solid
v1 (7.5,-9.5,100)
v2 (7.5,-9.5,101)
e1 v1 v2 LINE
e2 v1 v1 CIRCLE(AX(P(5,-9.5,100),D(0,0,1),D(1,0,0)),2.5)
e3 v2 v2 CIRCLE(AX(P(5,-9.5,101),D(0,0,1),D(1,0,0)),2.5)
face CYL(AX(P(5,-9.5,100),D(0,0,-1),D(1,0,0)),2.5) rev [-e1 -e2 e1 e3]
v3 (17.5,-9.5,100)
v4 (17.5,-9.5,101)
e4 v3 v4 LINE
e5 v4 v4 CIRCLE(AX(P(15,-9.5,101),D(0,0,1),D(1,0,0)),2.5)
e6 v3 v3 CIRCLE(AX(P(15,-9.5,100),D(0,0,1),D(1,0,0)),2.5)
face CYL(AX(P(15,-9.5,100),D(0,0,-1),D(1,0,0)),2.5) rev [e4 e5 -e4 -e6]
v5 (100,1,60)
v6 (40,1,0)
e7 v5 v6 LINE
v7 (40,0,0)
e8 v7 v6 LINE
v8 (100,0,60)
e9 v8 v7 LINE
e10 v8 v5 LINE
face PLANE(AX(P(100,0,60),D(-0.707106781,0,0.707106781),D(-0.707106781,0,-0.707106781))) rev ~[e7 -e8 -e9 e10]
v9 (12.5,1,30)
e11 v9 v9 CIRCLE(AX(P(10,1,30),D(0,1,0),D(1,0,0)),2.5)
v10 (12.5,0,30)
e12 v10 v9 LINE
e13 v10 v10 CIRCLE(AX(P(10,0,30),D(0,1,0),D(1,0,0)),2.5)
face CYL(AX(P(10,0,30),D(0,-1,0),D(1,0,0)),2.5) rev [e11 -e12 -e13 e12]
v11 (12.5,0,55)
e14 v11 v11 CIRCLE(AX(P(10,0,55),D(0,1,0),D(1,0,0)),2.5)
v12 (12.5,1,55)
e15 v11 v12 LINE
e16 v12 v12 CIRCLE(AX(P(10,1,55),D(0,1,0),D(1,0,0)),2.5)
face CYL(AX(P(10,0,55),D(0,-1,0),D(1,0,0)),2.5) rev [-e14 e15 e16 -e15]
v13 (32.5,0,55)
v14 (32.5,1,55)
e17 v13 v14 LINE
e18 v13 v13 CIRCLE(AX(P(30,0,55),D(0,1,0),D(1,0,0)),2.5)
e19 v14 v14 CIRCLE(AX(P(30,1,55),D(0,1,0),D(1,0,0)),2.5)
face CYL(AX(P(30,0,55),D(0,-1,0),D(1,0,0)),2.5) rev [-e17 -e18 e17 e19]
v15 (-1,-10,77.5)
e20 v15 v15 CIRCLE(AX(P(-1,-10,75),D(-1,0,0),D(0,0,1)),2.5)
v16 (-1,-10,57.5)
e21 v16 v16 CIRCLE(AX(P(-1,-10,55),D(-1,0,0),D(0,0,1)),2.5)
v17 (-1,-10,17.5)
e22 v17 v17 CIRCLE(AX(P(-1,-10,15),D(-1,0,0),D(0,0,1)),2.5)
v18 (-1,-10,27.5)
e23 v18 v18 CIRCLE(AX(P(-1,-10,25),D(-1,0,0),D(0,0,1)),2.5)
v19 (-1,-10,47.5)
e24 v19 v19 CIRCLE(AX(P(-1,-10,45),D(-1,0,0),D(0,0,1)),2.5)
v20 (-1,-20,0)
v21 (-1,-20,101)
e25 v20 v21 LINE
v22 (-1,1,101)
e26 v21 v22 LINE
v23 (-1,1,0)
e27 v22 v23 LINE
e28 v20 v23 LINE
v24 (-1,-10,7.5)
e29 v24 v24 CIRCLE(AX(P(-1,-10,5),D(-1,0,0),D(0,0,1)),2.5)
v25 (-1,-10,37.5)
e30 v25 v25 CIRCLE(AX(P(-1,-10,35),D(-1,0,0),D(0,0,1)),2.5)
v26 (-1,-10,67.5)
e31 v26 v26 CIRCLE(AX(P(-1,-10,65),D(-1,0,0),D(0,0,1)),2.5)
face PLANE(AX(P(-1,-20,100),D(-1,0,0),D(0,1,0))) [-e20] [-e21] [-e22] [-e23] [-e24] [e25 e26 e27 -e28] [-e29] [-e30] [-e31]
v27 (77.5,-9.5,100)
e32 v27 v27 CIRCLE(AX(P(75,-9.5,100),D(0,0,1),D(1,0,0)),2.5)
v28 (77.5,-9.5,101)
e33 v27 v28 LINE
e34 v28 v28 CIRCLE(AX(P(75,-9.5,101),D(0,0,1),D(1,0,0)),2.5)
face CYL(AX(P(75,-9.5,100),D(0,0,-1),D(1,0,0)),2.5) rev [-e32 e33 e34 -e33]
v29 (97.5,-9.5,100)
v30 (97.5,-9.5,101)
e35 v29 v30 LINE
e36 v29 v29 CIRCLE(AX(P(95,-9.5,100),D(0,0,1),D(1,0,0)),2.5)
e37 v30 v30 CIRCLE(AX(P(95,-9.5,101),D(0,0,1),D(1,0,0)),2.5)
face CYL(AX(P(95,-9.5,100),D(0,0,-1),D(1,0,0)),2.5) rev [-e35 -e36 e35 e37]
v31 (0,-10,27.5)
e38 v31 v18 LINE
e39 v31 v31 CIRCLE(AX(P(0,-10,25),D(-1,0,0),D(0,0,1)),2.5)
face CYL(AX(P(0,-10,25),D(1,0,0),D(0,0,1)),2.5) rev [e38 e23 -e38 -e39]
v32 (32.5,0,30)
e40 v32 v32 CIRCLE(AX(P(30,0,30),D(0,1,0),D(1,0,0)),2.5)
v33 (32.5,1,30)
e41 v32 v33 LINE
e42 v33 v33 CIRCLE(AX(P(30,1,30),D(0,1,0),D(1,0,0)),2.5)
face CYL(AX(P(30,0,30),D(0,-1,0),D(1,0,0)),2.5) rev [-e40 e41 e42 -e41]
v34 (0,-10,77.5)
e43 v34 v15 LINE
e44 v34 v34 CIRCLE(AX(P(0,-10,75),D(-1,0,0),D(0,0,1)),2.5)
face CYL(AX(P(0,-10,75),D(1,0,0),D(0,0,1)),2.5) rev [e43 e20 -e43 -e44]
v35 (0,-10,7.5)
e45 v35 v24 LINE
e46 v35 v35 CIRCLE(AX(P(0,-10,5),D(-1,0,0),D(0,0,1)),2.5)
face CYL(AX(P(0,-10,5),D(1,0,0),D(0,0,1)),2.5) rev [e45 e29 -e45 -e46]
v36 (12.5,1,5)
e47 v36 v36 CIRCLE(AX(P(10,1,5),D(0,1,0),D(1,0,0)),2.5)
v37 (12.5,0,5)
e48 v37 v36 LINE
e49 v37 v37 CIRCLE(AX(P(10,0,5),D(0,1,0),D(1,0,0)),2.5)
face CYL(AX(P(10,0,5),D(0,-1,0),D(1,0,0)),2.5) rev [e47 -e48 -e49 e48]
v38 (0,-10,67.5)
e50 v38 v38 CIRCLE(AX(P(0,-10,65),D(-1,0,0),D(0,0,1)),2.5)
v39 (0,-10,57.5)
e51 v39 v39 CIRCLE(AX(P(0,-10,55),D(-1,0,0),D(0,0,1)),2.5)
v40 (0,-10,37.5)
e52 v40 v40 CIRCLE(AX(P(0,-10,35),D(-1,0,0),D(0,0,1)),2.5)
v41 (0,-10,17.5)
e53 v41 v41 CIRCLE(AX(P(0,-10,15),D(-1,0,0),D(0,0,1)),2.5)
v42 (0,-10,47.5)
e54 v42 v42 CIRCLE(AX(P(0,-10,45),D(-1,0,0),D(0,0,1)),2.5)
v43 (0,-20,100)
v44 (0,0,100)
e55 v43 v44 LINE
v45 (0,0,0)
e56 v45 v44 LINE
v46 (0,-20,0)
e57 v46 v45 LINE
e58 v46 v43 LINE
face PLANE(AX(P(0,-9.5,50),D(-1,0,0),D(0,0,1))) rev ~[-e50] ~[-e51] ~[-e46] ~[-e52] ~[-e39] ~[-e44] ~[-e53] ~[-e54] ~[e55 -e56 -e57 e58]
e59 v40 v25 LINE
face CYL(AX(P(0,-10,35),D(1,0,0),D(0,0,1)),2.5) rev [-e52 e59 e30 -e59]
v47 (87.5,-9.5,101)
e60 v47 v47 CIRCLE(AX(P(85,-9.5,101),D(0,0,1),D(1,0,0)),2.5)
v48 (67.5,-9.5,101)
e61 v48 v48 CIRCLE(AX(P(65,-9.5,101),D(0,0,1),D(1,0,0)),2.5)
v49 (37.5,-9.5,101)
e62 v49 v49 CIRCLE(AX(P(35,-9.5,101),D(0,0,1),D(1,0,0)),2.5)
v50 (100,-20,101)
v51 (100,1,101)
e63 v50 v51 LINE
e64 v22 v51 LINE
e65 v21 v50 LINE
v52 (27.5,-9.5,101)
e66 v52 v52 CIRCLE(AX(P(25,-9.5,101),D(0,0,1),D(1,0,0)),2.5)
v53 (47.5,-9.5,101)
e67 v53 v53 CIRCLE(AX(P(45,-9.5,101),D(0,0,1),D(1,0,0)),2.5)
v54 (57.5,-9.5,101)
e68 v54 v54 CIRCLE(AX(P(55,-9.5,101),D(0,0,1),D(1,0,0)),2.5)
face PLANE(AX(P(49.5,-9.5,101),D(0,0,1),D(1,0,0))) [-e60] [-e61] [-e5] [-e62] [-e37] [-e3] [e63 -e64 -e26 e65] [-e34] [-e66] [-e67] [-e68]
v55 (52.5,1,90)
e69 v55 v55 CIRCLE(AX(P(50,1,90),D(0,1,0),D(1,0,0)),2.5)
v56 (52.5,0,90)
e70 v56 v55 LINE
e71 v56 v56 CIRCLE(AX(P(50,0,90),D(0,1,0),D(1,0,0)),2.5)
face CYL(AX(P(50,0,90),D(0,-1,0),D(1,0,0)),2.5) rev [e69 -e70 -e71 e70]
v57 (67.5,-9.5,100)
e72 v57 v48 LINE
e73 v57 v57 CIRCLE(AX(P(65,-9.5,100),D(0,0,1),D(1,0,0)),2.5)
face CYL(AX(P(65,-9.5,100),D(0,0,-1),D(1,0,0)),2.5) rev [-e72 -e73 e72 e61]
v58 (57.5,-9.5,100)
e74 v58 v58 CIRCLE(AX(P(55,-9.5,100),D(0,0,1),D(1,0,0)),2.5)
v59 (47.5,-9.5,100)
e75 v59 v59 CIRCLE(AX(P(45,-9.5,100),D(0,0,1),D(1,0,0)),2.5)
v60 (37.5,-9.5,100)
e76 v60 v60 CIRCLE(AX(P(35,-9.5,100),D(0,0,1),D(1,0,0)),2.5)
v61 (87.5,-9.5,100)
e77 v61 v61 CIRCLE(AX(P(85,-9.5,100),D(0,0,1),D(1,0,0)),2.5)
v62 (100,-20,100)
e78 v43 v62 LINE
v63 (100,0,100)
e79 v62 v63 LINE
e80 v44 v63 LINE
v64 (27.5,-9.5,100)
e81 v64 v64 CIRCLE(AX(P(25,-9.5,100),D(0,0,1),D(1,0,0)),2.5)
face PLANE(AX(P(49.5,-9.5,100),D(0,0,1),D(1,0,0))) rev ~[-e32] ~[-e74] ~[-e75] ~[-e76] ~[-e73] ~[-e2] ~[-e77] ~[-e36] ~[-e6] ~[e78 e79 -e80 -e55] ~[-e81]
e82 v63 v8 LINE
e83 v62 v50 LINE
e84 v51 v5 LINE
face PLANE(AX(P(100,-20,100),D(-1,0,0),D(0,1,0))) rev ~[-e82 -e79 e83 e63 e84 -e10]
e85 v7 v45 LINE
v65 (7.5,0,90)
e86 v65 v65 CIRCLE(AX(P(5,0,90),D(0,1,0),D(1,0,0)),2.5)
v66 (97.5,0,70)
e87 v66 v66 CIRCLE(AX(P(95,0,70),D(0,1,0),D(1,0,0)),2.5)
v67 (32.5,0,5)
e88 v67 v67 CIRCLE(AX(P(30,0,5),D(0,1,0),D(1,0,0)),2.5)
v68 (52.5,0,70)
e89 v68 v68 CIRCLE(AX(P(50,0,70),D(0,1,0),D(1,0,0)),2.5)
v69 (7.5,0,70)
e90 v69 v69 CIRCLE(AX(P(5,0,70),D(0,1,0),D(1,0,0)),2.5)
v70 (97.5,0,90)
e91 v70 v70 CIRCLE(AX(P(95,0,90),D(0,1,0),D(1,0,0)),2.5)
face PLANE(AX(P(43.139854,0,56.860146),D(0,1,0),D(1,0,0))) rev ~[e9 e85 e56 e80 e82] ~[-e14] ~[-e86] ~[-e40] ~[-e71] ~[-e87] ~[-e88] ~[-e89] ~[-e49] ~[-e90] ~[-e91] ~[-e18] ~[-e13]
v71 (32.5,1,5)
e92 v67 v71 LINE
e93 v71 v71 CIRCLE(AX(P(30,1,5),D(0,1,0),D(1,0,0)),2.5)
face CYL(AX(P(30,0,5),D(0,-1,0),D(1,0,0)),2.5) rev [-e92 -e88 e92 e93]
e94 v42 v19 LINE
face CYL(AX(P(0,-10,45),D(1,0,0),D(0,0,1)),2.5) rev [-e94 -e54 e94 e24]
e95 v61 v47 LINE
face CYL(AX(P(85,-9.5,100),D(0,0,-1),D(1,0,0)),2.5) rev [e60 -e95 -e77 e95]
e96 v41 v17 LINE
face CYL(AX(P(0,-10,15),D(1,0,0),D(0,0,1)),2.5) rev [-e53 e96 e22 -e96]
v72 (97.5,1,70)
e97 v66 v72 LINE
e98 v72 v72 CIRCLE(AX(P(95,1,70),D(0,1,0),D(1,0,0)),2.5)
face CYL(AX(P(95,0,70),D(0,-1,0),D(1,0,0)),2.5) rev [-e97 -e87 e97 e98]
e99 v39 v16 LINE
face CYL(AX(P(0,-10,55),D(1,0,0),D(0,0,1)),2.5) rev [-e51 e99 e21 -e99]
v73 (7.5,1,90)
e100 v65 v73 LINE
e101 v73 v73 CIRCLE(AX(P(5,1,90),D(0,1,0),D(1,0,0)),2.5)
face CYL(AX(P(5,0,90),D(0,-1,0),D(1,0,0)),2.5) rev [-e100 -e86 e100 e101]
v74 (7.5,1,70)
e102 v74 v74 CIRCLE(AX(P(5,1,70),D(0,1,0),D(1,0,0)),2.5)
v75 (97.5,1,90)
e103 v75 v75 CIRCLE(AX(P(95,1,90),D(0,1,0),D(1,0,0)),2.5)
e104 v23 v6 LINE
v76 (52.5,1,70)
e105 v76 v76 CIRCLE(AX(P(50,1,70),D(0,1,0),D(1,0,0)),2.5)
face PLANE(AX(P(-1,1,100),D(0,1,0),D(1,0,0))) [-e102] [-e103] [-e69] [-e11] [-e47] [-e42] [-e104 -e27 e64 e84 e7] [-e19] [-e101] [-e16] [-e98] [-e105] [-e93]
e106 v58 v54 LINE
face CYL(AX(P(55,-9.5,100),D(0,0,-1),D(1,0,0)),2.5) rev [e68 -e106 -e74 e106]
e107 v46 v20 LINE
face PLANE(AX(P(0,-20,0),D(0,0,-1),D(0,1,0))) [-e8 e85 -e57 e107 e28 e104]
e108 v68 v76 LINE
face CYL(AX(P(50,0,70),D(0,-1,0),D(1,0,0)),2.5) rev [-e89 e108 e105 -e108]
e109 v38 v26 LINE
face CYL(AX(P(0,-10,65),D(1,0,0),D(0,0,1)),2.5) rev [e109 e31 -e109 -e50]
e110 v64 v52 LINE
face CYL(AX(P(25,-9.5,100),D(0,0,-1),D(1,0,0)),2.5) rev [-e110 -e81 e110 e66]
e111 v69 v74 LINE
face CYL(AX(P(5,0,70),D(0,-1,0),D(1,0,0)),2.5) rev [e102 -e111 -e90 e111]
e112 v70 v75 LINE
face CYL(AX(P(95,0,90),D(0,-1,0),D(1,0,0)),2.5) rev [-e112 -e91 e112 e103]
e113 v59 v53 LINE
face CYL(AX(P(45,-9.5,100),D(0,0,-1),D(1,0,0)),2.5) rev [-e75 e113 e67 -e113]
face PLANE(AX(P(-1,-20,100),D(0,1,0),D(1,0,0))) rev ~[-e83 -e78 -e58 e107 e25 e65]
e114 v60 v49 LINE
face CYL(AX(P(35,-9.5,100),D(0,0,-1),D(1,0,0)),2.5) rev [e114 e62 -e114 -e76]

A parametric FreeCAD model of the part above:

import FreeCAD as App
import Part
import Sketcher


def add_polygon(sketch, points):
    """Adds a closed chain of lines whose ends are joined by coincident constraints."""
    first, n = sketch.GeometryCount, len(points)
    for a, b in zip(points, points[1:] + points[:1]):
        sketch.addGeometry(Part.LineSegment(App.Vector(*a, 0), App.Vector(*b, 0)), False)
    for i in range(n):
        sketch.addConstraint(Sketcher.Constraint("Coincident", first + i, 2, first + (i + 1) % n, 1))

doc = App.newDocument("Part")
body = doc.addObject("PartDesign::Body", "Body")

sketch1 = doc.addObject("Sketcher::SketchObject", "Sketch")
body.addObject(sketch1)
sketch1.AttachmentSupport = (doc.XZ_Plane, [""])
sketch1.MapMode = "FlatFace"
add_polygon(sketch1, [(0, 0), (0, 100), (100, 100), (100, 60), (40, 0)])
sketch1.addGeometry(Part.Circle(App.Vector(5, 90, 0), App.Vector(0, 0, 1), 2.5), False)
sketch1.addGeometry(Part.Circle(App.Vector(5, 70, 0), App.Vector(0, 0, 1), 2.5), False)
sketch1.addGeometry(Part.Circle(App.Vector(10, 55, 0), App.Vector(0, 0, 1), 2.5), False)
sketch1.addGeometry(Part.Circle(App.Vector(30, 55, 0), App.Vector(0, 0, 1), 2.5), False)
sketch1.addGeometry(Part.Circle(App.Vector(50, 90, 0), App.Vector(0, 0, 1), 2.5), False)
sketch1.addGeometry(Part.Circle(App.Vector(95, 90, 0), App.Vector(0, 0, 1), 2.5), False)
sketch1.addGeometry(Part.Circle(App.Vector(50, 70, 0), App.Vector(0, 0, 1), 2.5), False)
sketch1.addGeometry(Part.Circle(App.Vector(95, 70, 0), App.Vector(0, 0, 1), 2.5), False)
sketch1.addGeometry(Part.Circle(App.Vector(10, 30, 0), App.Vector(0, 0, 1), 2.5), False)
sketch1.addGeometry(Part.Circle(App.Vector(30, 30, 0), App.Vector(0, 0, 1), 2.5), False)
sketch1.addGeometry(Part.Circle(App.Vector(10, 5, 0), App.Vector(0, 0, 1), 2.5), False)
sketch1.addGeometry(Part.Circle(App.Vector(30, 5, 0), App.Vector(0, 0, 1), 2.5), False)
sketch1.addConstraint(Sketcher.Constraint("Vertical", 0))
sketch1.addConstraint(Sketcher.Constraint("Horizontal", 1))
sketch1.addConstraint(Sketcher.Constraint("Vertical", 2))
sketch1.addConstraint(Sketcher.Constraint("Horizontal", 4))
sketch1.addConstraint(Sketcher.Constraint("Coincident", 4, 2, -1, 1))
sketch1.addConstraint(Sketcher.Constraint("Equal", 5, 6))
sketch1.addConstraint(Sketcher.Constraint("Equal", 6, 7))
sketch1.addConstraint(Sketcher.Constraint("Equal", 7, 8))
sketch1.addConstraint(Sketcher.Constraint("Equal", 8, 9))
sketch1.addConstraint(Sketcher.Constraint("Equal", 9, 10))
sketch1.addConstraint(Sketcher.Constraint("Equal", 10, 11))
sketch1.addConstraint(Sketcher.Constraint("Equal", 11, 12))
sketch1.addConstraint(Sketcher.Constraint("Equal", 12, 13))
sketch1.addConstraint(Sketcher.Constraint("Equal", 13, 14))
sketch1.addConstraint(Sketcher.Constraint("Equal", 14, 15))
sketch1.addConstraint(Sketcher.Constraint("Equal", 15, 16))
sketch1.addConstraint(Sketcher.Constraint("Horizontal", 7, 3, 8, 3))
sketch1.addConstraint(Sketcher.Constraint("Horizontal", 5, 3, 9, 3))
sketch1.addConstraint(Sketcher.Constraint("Horizontal", 9, 3, 10, 3))
sketch1.addConstraint(Sketcher.Constraint("Horizontal", 6, 3, 11, 3))
sketch1.addConstraint(Sketcher.Constraint("Horizontal", 11, 3, 12, 3))
sketch1.addConstraint(Sketcher.Constraint("Horizontal", 13, 3, 14, 3))
sketch1.addConstraint(Sketcher.Constraint("Horizontal", 15, 3, 16, 3))
sketch1.addConstraint(Sketcher.Constraint("Vertical", 5, 3, 6, 3))
sketch1.addConstraint(Sketcher.Constraint("Vertical", 9, 3, 11, 3))
sketch1.addConstraint(Sketcher.Constraint("Vertical", 10, 3, 12, 3))
sketch1.addConstraint(Sketcher.Constraint("Vertical", 7, 3, 13, 3))
sketch1.addConstraint(Sketcher.Constraint("Vertical", 8, 3, 14, 3))
sketch1.addConstraint(Sketcher.Constraint("Vertical", 13, 3, 15, 3))
sketch1.addConstraint(Sketcher.Constraint("Vertical", 14, 3, 16, 3))
sketch1.addConstraint(Sketcher.Constraint("Equal", 1, 0))
sketch1.addConstraint(Sketcher.Constraint("Equal", 4, 2))
sketch1.addConstraint(Sketcher.Constraint("Diameter", 5, 5.0))
sketch1.addConstraint(Sketcher.Constraint("DistanceX", 1, 1, 1, 2, 100.0))
sketch1.addConstraint(Sketcher.Constraint("DistanceX", 4, 2, 4, 1, 40.0))
sketch1.addConstraint(Sketcher.Constraint("DistanceX", -1, 1, 5, 3, 5.0))
sketch1.addConstraint(Sketcher.Constraint("DistanceY", -1, 1, 5, 3, 90.0))
sketch1.addConstraint(Sketcher.Constraint("DistanceY", -1, 1, 6, 3, 70.0))
sketch1.addConstraint(Sketcher.Constraint("DistanceX", -1, 1, 7, 3, 10.0))
sketch1.addConstraint(Sketcher.Constraint("DistanceY", -1, 1, 7, 3, 55.0))
sketch1.addConstraint(Sketcher.Constraint("DistanceX", -1, 1, 8, 3, 30.0))
sketch1.addConstraint(Sketcher.Constraint("DistanceX", -1, 1, 9, 3, 50.0))
sketch1.addConstraint(Sketcher.Constraint("DistanceX", -1, 1, 10, 3, 95.0))
sketch1.addConstraint(Sketcher.Constraint("DistanceY", -1, 1, 13, 3, 30.0))
sketch1.addConstraint(Sketcher.Constraint("DistanceY", -1, 1, 15, 3, 5.0))
pad1 = doc.addObject("PartDesign::Pad", "Pad")
body.addObject(pad1)
pad1.Profile = sketch1
pad1.Length = 1
pad1.Reversed = True

sketch2 = doc.addObject("Sketcher::SketchObject", "Sketch001")
body.addObject(sketch2)
sketch2.AttachmentSupport = (doc.YZ_Plane, [""])
sketch2.MapMode = "FlatFace"
add_polygon(sketch2, [(1, 0), (-20, 0), (-20, 100), (1, 100)])
sketch2.addGeometry(Part.Circle(App.Vector(-10, 5, 0), App.Vector(0, 0, 1), 2.5), False)
sketch2.addGeometry(Part.Circle(App.Vector(-10, 15, 0), App.Vector(0, 0, 1), 2.5), False)
sketch2.addGeometry(Part.Circle(App.Vector(-10, 25, 0), App.Vector(0, 0, 1), 2.5), False)
sketch2.addGeometry(Part.Circle(App.Vector(-10, 35, 0), App.Vector(0, 0, 1), 2.5), False)
sketch2.addGeometry(Part.Circle(App.Vector(-10, 45, 0), App.Vector(0, 0, 1), 2.5), False)
sketch2.addGeometry(Part.Circle(App.Vector(-10, 55, 0), App.Vector(0, 0, 1), 2.5), False)
sketch2.addGeometry(Part.Circle(App.Vector(-10, 65, 0), App.Vector(0, 0, 1), 2.5), False)
sketch2.addGeometry(Part.Circle(App.Vector(-10, 75, 0), App.Vector(0, 0, 1), 2.5), False)
sketch2.addConstraint(Sketcher.Constraint("Horizontal", 0))
sketch2.addConstraint(Sketcher.Constraint("Vertical", 1))
sketch2.addConstraint(Sketcher.Constraint("Horizontal", 2))
sketch2.addConstraint(Sketcher.Constraint("Vertical", 3))
sketch2.addConstraint(Sketcher.Constraint("Equal", 4, 5))
sketch2.addConstraint(Sketcher.Constraint("Equal", 5, 6))
sketch2.addConstraint(Sketcher.Constraint("Equal", 6, 7))
sketch2.addConstraint(Sketcher.Constraint("Equal", 7, 8))
sketch2.addConstraint(Sketcher.Constraint("Equal", 8, 9))
sketch2.addConstraint(Sketcher.Constraint("Equal", 9, 10))
sketch2.addConstraint(Sketcher.Constraint("Equal", 10, 11))
sketch2.addConstraint(Sketcher.Constraint("PointOnObject", 0, 2, -1))
sketch2.addConstraint(Sketcher.Constraint("Vertical", 4, 3, 5, 3))
sketch2.addConstraint(Sketcher.Constraint("Vertical", 5, 3, 6, 3))
sketch2.addConstraint(Sketcher.Constraint("Vertical", 6, 3, 7, 3))
sketch2.addConstraint(Sketcher.Constraint("Vertical", 7, 3, 8, 3))
sketch2.addConstraint(Sketcher.Constraint("Vertical", 8, 3, 9, 3))
sketch2.addConstraint(Sketcher.Constraint("Vertical", 9, 3, 10, 3))
sketch2.addConstraint(Sketcher.Constraint("Vertical", 10, 3, 11, 3))
sketch2.addConstraint(Sketcher.Constraint("Diameter", 4, 5.0))
sketch2.addConstraint(Sketcher.Constraint("DistanceX", 0, 2, 0, 1, 21.0))
sketch2.addConstraint(Sketcher.Constraint("DistanceY", 1, 1, 1, 2, 100.0))
sketch2.addConstraint(Sketcher.Constraint("DistanceX", 4, 3, -1, 1, 10.0))
sketch2.addConstraint(Sketcher.Constraint("DistanceY", -1, 1, 4, 3, 5.0))
sketch2.addConstraint(Sketcher.Constraint("DistanceY", -1, 1, 5, 3, 15.0))
sketch2.addConstraint(Sketcher.Constraint("DistanceY", -1, 1, 6, 3, 25.0))
sketch2.addConstraint(Sketcher.Constraint("DistanceY", -1, 1, 7, 3, 35.0))
sketch2.addConstraint(Sketcher.Constraint("DistanceY", -1, 1, 8, 3, 45.0))
sketch2.addConstraint(Sketcher.Constraint("DistanceY", -1, 1, 9, 3, 55.0))
sketch2.addConstraint(Sketcher.Constraint("DistanceY", -1, 1, 10, 3, 65.0))
sketch2.addConstraint(Sketcher.Constraint("DistanceY", -1, 1, 11, 3, 75.0))
sketch2.addConstraint(Sketcher.Constraint("DistanceX", 0, 2, -1, 1, 20.0))
pad2 = doc.addObject("PartDesign::Pad", "Pad001")
body.addObject(pad2)
pad2.Profile = sketch2
pad2.Length = 1
pad2.Reversed = True

sketch3 = doc.addObject("Sketcher::SketchObject", "Sketch002")
body.addObject(sketch3)
sketch3.AttachmentSupport = (doc.XY_Plane, [""])
sketch3.MapMode = "FlatFace"
sketch3.AttachmentOffset = App.Placement(App.Vector(0, 0, 100), App.Rotation())
add_polygon(sketch3, [(-1, 1), (-1, -20), (100, -20), (100, 1)])
sketch3.addGeometry(Part.Circle(App.Vector(5, -9.5, 0), App.Vector(0, 0, 1), 2.5), False)
sketch3.addGeometry(Part.Circle(App.Vector(15, -9.5, 0), App.Vector(0, 0, 1), 2.5), False)
sketch3.addGeometry(Part.Circle(App.Vector(25, -9.5, 0), App.Vector(0, 0, 1), 2.5), False)
sketch3.addGeometry(Part.Circle(App.Vector(35, -9.5, 0), App.Vector(0, 0, 1), 2.5), False)
sketch3.addGeometry(Part.Circle(App.Vector(45, -9.5, 0), App.Vector(0, 0, 1), 2.5), False)
sketch3.addGeometry(Part.Circle(App.Vector(55, -9.5, 0), App.Vector(0, 0, 1), 2.5), False)
sketch3.addGeometry(Part.Circle(App.Vector(65, -9.5, 0), App.Vector(0, 0, 1), 2.5), False)
sketch3.addGeometry(Part.Circle(App.Vector(75, -9.5, 0), App.Vector(0, 0, 1), 2.5), False)
sketch3.addGeometry(Part.Circle(App.Vector(85, -9.5, 0), App.Vector(0, 0, 1), 2.5), False)
sketch3.addGeometry(Part.Circle(App.Vector(95, -9.5, 0), App.Vector(0, 0, 1), 2.5), False)
sketch3.addConstraint(Sketcher.Constraint("Vertical", 0))
sketch3.addConstraint(Sketcher.Constraint("Horizontal", 1))
sketch3.addConstraint(Sketcher.Constraint("Vertical", 2))
sketch3.addConstraint(Sketcher.Constraint("Horizontal", 3))
sketch3.addConstraint(Sketcher.Constraint("Equal", 4, 5))
sketch3.addConstraint(Sketcher.Constraint("Equal", 5, 6))
sketch3.addConstraint(Sketcher.Constraint("Equal", 6, 7))
sketch3.addConstraint(Sketcher.Constraint("Equal", 7, 8))
sketch3.addConstraint(Sketcher.Constraint("Equal", 8, 9))
sketch3.addConstraint(Sketcher.Constraint("Equal", 9, 10))
sketch3.addConstraint(Sketcher.Constraint("Equal", 10, 11))
sketch3.addConstraint(Sketcher.Constraint("Equal", 11, 12))
sketch3.addConstraint(Sketcher.Constraint("Equal", 12, 13))
sketch3.addConstraint(Sketcher.Constraint("Horizontal", 4, 3, 5, 3))
sketch3.addConstraint(Sketcher.Constraint("Horizontal", 5, 3, 6, 3))
sketch3.addConstraint(Sketcher.Constraint("Horizontal", 6, 3, 7, 3))
sketch3.addConstraint(Sketcher.Constraint("Horizontal", 7, 3, 8, 3))
sketch3.addConstraint(Sketcher.Constraint("Horizontal", 8, 3, 9, 3))
sketch3.addConstraint(Sketcher.Constraint("Horizontal", 9, 3, 10, 3))
sketch3.addConstraint(Sketcher.Constraint("Horizontal", 10, 3, 11, 3))
sketch3.addConstraint(Sketcher.Constraint("Horizontal", 11, 3, 12, 3))
sketch3.addConstraint(Sketcher.Constraint("Horizontal", 12, 3, 13, 3))
sketch3.addConstraint(Sketcher.Constraint("Diameter", 4, 5.0))
sketch3.addConstraint(Sketcher.Constraint("DistanceX", 1, 1, 1, 2, 101.0))
sketch3.addConstraint(Sketcher.Constraint("DistanceY", 0, 2, 0, 1, 21.0))
sketch3.addConstraint(Sketcher.Constraint("DistanceX", -1, 1, 4, 3, 5.0))
sketch3.addConstraint(Sketcher.Constraint("DistanceX", -1, 1, 5, 3, 15.0))
sketch3.addConstraint(Sketcher.Constraint("DistanceX", -1, 1, 6, 3, 25.0))
sketch3.addConstraint(Sketcher.Constraint("DistanceX", -1, 1, 7, 3, 35.0))
sketch3.addConstraint(Sketcher.Constraint("DistanceX", -1, 1, 8, 3, 45.0))
sketch3.addConstraint(Sketcher.Constraint("DistanceX", -1, 1, 9, 3, 55.0))
sketch3.addConstraint(Sketcher.Constraint("DistanceX", -1, 1, 10, 3, 65.0))
sketch3.addConstraint(Sketcher.Constraint("DistanceX", -1, 1, 11, 3, 75.0))
sketch3.addConstraint(Sketcher.Constraint("DistanceX", -1, 1, 12, 3, 85.0))
sketch3.addConstraint(Sketcher.Constraint("DistanceX", -1, 1, 13, 3, 95.0))
sketch3.addConstraint(Sketcher.Constraint("DistanceX", 0, 2, -1, 1, 1.0))
sketch3.addConstraint(Sketcher.Constraint("DistanceY", 0, 2, -1, 1, 20.0))
sketch3.addConstraint(Sketcher.Constraint("DistanceY", 4, 3, -1, 1, 9.5))
pad3 = doc.addObject("PartDesign::Pad", "Pad002")
body.addObject(pad3)
pad3.Profile = sketch3
pad3.Length = 1

doc.recompute()
